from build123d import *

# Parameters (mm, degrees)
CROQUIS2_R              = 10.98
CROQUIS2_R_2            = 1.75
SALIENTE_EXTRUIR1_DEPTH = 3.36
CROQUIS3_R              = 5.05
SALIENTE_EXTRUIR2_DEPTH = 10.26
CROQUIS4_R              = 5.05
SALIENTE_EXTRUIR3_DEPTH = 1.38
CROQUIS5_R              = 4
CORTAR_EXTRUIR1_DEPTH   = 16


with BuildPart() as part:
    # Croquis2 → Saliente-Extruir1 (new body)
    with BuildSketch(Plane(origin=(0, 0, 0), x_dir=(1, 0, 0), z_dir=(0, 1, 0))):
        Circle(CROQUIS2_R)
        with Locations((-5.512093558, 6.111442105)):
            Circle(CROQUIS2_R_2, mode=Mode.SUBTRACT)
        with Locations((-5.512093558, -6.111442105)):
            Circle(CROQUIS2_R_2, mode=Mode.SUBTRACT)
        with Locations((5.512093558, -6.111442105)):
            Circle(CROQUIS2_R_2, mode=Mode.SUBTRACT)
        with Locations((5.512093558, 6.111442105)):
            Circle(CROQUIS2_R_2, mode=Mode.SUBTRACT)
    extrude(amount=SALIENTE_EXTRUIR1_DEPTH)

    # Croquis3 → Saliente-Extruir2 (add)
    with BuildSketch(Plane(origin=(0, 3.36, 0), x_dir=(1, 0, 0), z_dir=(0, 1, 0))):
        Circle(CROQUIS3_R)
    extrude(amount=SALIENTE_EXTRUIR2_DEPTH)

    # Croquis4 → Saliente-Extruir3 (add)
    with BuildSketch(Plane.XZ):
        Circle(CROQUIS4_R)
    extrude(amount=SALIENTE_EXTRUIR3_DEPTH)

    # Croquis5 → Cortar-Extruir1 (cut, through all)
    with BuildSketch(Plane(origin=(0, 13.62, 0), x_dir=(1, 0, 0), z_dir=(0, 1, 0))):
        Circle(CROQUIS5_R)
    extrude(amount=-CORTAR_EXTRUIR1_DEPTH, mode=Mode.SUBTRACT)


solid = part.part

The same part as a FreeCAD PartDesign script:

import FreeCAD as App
import Part
import Sketcher
from FreeCAD import Vector

doc = App.newDocument("Part")
body = doc.addObject("PartDesign::Body", "Body")

# Sketch on XZ plane
sketch1 = body.newObject("Sketcher::SketchObject", "Sketch")
sketch1.AttachmentSupport = (doc.getObject("XZ_Plane"), [""])
sketch1.MapMode = "FlatFace"
sketch1.addGeometry(Part.Circle(Vector(0, 0, 0), Vector(0, 0, 1), 11), False)
sketch1.addGeometry(Part.Circle(Vector(-5.5, 6.1, 0), Vector(0, 0, 1), 1.8), False)
sketch1.addGeometry(Part.Circle(Vector(5.5, 6.1, 0), Vector(0, 0, 1), 1.8), False)
sketch1.addGeometry(Part.Circle(Vector(-5.5, -6.1, 0), Vector(0, 0, 1), 1.8), False)
sketch1.addGeometry(Part.Circle(Vector(5.5, -6.1, 0), Vector(0, 0, 1), 1.8), False)
sketch1.addConstraint(Sketcher.Constraint("Coincident", 0, 3, -1, 1))
sketch1.addConstraint(Sketcher.Constraint("Equal", 1, 2))
sketch1.addConstraint(Sketcher.Constraint("Equal", 2, 3))
sketch1.addConstraint(Sketcher.Constraint("Equal", 3, 4))
sketch1.addConstraint(Sketcher.Constraint("Symmetric", 2, 3, 3, 3, -1, 1))
sketch1.addConstraint(Sketcher.Constraint("Symmetric", 1, 3, 4, 3, -1, 1))
sketch1.addConstraint(Sketcher.Constraint("Symmetric", 1, 3, 2, 3, -2))
sketch1.addConstraint(Sketcher.Constraint("Diameter", 1, 3.5))
sketch1.addConstraint(Sketcher.Constraint("Diameter", 0, 21.96))
sketch1.addConstraint(Sketcher.Constraint("DistanceX", 1, 3, -1, 1, 5.512094))
sketch1.addConstraint(Sketcher.Constraint("DistanceY", -1, 1, 1, 3, 6.111442))
pad1 = body.newObject("PartDesign::Pad", "Pad")
pad1.Profile = sketch1
pad1.Length = 3.36
pad1.Reversed = True

# Sketch on XZ plane
sketch2 = body.newObject("Sketcher::SketchObject", "Sketch001")
sketch2.AttachmentSupport = (doc.getObject("XZ_Plane"), [""])
sketch2.MapMode = "FlatFace"
sketch2.AttachmentOffset = App.Placement(Vector(0, 0, -3.36), App.Rotation())
sketch2.addGeometry(Part.Circle(Vector(0, 0, 0), Vector(0, 0, 1), 5), False)
sketch2.addConstraint(Sketcher.Constraint("Coincident", 0, 3, -1, 1))
sketch2.addConstraint(Sketcher.Constraint("Diameter", 0, 10.1))
pad2 = body.newObject("PartDesign::Pad", "Pad001")
pad2.Profile = sketch2
pad2.Length = 10.26
pad2.Reversed = True

# Sketch on XZ plane
sketch3 = body.newObject("Sketcher::SketchObject", "Sketch002")
sketch3.AttachmentSupport = (doc.getObject("XZ_Plane"), [""])
sketch3.MapMode = "FlatFace"
sketch3.addGeometry(Part.Circle(Vector(0, 0, 0), Vector(0, 0, 1), 5), False)
sketch3.addConstraint(Sketcher.Constraint("Coincident", 0, 3, -1, 1))
sketch3.addConstraint(Sketcher.Constraint("Diameter", 0, 10.1))
pad3 = body.newObject("PartDesign::Pad", "Pad002")
pad3.Profile = sketch3
pad3.Length = 1.38

# Sketch on XZ plane
sketch4 = body.newObject("Sketcher::SketchObject", "Sketch003")
sketch4.AttachmentSupport = (doc.getObject("XZ_Plane"), [""])
sketch4.MapMode = "FlatFace"
sketch4.AttachmentOffset = App.Placement(Vector(0, 0, -13.62), App.Rotation())
sketch4.addGeometry(Part.Circle(Vector(0, 0, 0), Vector(0, 0, 1), 4), False)
sketch4.addConstraint(Sketcher.Constraint("Coincident", 0, 3, -1, 1))
sketch4.addConstraint(Sketcher.Constraint("Diameter", 0, 8.0))
pocket1 = body.newObject("PartDesign::Pocket", "Pocket")
pocket1.Profile = sketch4
pocket1.Type = "ThroughAll"
pocket1.Reversed = True

doc.recompute()
